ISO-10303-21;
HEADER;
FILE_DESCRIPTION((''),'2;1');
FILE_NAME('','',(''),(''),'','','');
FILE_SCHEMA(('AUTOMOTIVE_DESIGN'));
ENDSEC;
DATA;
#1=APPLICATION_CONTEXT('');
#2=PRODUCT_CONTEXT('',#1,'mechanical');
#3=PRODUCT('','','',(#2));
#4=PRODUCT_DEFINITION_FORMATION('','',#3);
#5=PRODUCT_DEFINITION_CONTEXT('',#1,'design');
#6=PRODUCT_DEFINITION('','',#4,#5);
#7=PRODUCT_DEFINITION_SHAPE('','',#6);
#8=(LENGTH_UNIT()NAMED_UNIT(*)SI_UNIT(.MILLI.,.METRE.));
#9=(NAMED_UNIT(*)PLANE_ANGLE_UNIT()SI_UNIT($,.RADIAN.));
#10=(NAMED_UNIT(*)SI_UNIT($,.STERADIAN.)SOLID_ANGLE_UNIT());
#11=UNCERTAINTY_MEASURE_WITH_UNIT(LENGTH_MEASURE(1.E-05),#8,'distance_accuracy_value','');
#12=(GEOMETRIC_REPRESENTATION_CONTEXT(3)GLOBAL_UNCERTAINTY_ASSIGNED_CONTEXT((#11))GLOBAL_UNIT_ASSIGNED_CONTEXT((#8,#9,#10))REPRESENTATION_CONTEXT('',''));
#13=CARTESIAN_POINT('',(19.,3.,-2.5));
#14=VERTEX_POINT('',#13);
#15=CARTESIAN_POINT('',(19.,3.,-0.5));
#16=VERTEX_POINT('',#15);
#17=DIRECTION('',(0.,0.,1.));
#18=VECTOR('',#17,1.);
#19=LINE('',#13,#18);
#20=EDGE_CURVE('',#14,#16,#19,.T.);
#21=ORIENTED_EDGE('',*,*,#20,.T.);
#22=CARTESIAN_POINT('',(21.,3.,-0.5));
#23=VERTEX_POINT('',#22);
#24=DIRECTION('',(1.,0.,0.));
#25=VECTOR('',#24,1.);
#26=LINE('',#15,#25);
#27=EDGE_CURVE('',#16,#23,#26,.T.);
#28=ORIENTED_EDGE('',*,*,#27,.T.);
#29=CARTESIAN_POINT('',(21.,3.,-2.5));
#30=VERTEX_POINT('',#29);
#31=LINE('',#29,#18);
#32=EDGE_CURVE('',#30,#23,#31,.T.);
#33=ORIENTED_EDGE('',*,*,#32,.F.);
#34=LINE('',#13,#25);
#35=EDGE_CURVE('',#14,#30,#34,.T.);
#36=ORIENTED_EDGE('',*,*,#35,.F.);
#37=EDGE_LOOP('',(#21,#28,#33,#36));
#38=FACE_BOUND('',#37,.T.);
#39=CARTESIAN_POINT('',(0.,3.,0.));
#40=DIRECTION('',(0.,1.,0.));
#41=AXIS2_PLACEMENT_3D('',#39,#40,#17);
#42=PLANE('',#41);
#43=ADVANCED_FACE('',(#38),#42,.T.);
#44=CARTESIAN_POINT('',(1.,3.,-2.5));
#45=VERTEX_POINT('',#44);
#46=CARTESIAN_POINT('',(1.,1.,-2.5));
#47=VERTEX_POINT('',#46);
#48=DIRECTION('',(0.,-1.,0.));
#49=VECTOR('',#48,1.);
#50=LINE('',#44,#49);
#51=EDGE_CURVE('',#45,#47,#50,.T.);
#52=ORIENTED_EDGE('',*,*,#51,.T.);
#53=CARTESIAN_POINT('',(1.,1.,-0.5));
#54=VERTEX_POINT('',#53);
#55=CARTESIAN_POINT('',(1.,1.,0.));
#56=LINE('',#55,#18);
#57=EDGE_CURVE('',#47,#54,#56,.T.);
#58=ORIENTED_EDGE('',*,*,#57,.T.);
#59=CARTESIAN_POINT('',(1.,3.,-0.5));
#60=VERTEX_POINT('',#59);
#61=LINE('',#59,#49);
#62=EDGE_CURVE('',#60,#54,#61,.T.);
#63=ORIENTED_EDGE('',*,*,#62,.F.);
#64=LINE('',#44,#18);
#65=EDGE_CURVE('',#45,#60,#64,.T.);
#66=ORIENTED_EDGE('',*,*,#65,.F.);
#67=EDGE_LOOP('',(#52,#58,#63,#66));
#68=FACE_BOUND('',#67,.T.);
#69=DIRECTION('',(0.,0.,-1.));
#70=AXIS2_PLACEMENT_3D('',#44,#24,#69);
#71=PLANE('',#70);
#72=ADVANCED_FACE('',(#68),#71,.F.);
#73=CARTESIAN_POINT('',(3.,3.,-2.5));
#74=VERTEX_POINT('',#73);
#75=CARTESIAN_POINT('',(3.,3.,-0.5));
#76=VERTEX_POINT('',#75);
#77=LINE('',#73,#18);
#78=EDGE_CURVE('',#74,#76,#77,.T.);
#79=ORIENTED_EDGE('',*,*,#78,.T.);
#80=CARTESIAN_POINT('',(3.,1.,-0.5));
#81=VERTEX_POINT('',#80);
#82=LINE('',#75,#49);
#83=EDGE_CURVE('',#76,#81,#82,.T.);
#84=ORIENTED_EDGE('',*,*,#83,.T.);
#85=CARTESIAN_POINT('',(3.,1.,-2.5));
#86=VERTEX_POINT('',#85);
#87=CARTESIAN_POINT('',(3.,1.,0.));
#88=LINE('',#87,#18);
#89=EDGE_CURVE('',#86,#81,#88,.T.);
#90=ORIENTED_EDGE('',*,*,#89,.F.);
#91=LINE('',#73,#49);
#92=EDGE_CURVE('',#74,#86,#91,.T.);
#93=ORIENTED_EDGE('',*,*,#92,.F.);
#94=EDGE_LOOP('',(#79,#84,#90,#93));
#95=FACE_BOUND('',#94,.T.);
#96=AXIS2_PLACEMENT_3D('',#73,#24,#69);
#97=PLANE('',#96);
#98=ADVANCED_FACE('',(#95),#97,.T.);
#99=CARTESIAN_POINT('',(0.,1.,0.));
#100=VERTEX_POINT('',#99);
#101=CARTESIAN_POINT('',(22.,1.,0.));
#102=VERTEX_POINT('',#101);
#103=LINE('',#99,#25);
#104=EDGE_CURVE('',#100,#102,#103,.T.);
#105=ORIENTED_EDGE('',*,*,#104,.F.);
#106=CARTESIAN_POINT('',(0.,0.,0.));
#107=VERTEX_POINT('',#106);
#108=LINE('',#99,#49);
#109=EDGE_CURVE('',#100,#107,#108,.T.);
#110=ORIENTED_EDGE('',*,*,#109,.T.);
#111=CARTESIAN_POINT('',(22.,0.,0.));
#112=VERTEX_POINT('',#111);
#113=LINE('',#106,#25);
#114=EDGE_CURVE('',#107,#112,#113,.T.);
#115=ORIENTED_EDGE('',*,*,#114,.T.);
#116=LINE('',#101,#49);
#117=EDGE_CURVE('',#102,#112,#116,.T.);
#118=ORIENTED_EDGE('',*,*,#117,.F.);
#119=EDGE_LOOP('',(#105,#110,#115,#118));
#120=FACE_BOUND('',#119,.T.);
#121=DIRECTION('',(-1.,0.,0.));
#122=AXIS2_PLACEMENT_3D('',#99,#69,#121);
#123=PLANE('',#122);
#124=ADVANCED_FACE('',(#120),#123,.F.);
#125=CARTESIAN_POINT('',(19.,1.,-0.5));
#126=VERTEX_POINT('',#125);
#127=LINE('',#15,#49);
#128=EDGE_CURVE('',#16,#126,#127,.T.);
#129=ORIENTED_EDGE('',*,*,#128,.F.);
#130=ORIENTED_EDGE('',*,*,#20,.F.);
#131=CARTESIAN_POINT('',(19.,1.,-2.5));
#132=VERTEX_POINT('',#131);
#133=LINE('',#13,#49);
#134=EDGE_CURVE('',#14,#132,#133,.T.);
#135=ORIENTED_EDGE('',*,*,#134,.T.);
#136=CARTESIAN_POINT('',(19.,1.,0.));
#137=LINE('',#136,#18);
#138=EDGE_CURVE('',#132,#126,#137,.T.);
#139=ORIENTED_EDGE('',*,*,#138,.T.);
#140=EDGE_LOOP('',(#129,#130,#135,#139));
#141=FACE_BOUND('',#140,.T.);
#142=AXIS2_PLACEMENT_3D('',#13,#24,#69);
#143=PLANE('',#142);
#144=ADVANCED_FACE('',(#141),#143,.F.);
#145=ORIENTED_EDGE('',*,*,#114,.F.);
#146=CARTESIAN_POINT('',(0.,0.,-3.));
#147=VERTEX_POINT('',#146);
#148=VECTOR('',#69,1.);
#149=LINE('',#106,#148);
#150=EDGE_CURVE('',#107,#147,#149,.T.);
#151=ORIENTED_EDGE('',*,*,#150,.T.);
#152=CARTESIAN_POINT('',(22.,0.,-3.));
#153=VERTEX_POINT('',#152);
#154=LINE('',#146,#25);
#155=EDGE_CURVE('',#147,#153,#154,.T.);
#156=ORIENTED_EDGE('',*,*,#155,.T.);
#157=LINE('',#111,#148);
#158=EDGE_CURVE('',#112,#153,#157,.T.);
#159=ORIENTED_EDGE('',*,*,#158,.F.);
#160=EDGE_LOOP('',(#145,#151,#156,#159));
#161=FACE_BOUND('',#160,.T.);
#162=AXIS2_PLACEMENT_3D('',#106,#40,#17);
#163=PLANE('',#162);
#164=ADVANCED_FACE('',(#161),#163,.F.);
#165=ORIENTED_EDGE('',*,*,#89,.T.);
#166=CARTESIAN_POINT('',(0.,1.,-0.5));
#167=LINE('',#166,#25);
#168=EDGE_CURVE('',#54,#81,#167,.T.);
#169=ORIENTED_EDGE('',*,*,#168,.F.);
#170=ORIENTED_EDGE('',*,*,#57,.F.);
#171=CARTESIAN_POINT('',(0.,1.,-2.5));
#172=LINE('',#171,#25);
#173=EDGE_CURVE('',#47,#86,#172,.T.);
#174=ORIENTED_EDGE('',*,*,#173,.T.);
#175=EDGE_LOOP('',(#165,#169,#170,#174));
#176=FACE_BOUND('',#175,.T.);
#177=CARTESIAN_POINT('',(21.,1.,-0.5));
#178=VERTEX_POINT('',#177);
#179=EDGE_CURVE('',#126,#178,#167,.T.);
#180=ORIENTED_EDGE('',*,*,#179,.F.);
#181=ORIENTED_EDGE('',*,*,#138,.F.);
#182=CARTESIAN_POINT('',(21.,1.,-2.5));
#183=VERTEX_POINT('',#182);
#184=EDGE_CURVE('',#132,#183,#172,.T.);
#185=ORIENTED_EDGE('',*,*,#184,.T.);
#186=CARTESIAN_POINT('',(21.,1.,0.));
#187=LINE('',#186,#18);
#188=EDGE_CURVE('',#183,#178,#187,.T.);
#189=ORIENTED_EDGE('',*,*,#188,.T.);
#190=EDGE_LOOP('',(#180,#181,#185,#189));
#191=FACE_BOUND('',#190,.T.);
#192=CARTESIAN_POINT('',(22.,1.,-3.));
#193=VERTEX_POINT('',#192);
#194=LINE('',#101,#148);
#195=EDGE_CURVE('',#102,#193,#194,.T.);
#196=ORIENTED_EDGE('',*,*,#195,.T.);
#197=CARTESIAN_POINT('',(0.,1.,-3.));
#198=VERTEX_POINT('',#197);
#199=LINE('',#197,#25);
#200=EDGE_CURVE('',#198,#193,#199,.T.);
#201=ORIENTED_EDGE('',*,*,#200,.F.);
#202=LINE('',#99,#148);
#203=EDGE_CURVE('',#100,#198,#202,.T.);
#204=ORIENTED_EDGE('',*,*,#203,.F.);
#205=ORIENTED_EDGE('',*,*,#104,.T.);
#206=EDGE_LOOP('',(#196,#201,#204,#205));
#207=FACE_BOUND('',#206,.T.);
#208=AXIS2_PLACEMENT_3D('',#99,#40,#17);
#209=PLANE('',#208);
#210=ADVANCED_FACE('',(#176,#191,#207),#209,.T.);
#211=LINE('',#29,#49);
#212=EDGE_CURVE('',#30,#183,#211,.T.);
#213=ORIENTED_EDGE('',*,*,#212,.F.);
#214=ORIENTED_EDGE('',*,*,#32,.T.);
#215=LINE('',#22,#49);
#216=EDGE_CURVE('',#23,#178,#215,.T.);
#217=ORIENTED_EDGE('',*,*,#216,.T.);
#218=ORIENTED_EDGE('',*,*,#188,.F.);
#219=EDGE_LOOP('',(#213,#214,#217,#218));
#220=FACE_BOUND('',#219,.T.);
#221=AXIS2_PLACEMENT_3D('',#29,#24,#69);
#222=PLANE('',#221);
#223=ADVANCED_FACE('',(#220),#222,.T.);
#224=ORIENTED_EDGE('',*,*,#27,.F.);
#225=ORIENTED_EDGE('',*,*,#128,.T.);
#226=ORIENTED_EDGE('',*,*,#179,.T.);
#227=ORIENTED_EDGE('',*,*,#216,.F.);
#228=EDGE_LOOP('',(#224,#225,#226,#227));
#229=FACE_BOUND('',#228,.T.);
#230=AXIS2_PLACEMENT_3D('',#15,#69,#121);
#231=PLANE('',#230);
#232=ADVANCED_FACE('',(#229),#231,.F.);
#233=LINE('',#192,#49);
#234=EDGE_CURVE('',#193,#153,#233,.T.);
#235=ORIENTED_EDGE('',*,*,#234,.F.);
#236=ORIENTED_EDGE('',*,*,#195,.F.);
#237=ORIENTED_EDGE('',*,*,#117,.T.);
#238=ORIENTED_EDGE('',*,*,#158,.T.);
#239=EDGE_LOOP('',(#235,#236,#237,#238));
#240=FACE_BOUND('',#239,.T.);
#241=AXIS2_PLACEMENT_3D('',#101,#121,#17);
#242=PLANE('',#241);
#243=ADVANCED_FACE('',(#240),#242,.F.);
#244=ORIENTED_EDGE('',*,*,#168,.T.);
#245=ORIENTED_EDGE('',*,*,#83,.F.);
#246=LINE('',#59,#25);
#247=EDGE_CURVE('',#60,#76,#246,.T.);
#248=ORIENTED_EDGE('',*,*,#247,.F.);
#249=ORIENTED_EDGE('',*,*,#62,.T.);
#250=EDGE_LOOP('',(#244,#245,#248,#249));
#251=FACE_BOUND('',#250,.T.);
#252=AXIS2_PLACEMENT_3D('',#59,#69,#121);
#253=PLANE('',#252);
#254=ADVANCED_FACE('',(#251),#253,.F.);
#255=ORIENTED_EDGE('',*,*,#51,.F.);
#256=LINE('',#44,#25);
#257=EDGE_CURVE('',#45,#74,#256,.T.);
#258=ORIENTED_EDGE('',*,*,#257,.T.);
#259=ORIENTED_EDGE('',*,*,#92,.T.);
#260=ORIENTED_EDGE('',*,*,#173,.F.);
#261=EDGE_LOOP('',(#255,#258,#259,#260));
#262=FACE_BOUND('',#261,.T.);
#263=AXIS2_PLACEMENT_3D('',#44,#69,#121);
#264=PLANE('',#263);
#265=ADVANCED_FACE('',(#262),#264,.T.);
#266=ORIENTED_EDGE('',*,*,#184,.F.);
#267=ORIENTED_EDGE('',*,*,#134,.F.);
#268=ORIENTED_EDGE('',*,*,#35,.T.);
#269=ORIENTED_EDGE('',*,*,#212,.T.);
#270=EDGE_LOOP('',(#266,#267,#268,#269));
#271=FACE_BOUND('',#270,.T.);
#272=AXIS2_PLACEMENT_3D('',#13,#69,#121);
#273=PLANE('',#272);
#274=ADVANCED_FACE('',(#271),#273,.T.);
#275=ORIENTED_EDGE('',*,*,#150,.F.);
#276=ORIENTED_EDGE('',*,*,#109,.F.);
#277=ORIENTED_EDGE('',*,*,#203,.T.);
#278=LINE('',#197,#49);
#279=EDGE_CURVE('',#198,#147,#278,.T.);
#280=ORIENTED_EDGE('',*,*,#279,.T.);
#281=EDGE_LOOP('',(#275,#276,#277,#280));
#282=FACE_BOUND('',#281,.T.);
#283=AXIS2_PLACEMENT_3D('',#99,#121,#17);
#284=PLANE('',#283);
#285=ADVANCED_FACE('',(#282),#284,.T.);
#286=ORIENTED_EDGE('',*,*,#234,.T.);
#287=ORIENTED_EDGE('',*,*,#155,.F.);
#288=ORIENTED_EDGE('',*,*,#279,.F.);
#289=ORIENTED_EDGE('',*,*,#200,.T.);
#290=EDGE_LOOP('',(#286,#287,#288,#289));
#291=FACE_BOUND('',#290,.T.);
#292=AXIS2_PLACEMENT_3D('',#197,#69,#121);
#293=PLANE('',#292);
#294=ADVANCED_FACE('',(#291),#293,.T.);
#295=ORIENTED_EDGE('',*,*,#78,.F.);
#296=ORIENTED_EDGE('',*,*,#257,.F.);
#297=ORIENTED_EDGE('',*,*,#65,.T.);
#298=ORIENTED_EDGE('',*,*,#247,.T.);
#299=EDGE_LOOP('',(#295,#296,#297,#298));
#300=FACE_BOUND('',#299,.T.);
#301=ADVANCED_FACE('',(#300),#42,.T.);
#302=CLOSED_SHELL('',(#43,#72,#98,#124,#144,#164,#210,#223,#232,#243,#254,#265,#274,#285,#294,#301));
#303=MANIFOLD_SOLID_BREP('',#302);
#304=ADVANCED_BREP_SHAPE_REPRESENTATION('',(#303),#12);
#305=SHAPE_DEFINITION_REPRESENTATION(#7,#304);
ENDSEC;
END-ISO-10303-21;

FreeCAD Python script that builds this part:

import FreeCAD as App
import Part
import Sketcher


def add_polygon(sketch, points):
    """Adds a closed chain of lines whose ends are joined by coincident constraints."""
    first, n = sketch.GeometryCount, len(points)
    for a, b in zip(points, points[1:] + points[:1]):
        sketch.addGeometry(Part.LineSegment(App.Vector(*a, 0), App.Vector(*b, 0)), False)
    for i in range(n):
        sketch.addConstraint(Sketcher.Constraint("Coincident", first + i, 2, first + (i + 1) % n, 1))

doc = App.newDocument("Part")
body = doc.addObject("PartDesign::Body", "Body")

sketch1 = body.newObject("Sketcher::SketchObject", "Sketch")
sketch1.AttachmentSupport = (doc.getObject("XZ_Plane"), [""])
sketch1.MapMode = "FlatFace"
add_polygon(sketch1, [(0, -3), (0, 0), (22, 0), (22, -3)])
add_polygon(sketch1, [(3, -0.5), (1, -0.5), (1, -2.5), (3, -2.5)])
add_polygon(sketch1, [(21, -0.5), (19, -0.5), (19, -2.5), (21, -2.5)])
sketch1.addConstraint([
    Sketcher.Constraint("Vertical", 0),
    Sketcher.Constraint("Horizontal", 1),
    Sketcher.Constraint("Vertical", 2),
    Sketcher.Constraint("Horizontal", 3),
    Sketcher.Constraint("Horizontal", 4),
    Sketcher.Constraint("Vertical", 5),
    Sketcher.Constraint("Horizontal", 6),
    Sketcher.Constraint("Vertical", 7),
    Sketcher.Constraint("Horizontal", 8),
    Sketcher.Constraint("Vertical", 9),
    Sketcher.Constraint("Horizontal", 10),
    Sketcher.Constraint("Vertical", 11),
    Sketcher.Constraint("Coincident", 0, 2, -1, 1),
    Sketcher.Constraint("Horizontal", 7, 2, 8, 2),
    Sketcher.Constraint("Horizontal", 6, 2, 9, 2),
    Sketcher.Constraint("Equal", 6, 8),
    Sketcher.Constraint("Equal", 10, 5),
    Sketcher.Constraint("DistanceX", 1, 1, 1, 2, 22.0),
    Sketcher.Constraint("DistanceX", 4, 2, 4, 1, 2.0),
    Sketcher.Constraint("DistanceY", 0, 1, 0, 2, 3.0),
    Sketcher.Constraint("DistanceX", -1, 1, 4, 2, 1.0),
    Sketcher.Constraint("DistanceX", -1, 1, 8, 2, 19.0),
    Sketcher.Constraint("DistanceY", 4, 2, -1, 1, 0.5),
])
pad1 = body.newObject("PartDesign::Pad", "Pad")
pad1.Profile = sketch1
pad1.Length = 1
pad1.Reversed = True

sketch2 = body.newObject("Sketcher::SketchObject", "Sketch001")
sketch2.AttachmentSupport = (doc.getObject("XZ_Plane"), [""])
sketch2.MapMode = "FlatFace"
add_polygon(sketch2, [(1, -2.5), (1, -0.5), (3, -0.5), (3, -2.5)])
add_polygon(sketch2, [(19, -2.5), (19, -0.5), (21, -0.5), (21, -2.5)])
sketch2.addConstraint([
    Sketcher.Constraint("Vertical", 0),
    Sketcher.Constraint("Horizontal", 1),
    Sketcher.Constraint("Vertical", 2),
    Sketcher.Constraint("Horizontal", 3),
    Sketcher.Constraint("Vertical", 4),
    Sketcher.Constraint("Horizontal", 5),
    Sketcher.Constraint("Vertical", 6),
    Sketcher.Constraint("Horizontal", 7),
    Sketcher.Constraint("Horizontal", 1, 2, 4, 2),
    Sketcher.Constraint("Horizontal", 3, 2, 6, 2),
    Sketcher.Constraint("Equal", 3, 5),
    Sketcher.Constraint("Equal", 7, 0),
    Sketcher.Constraint("DistanceX", 1, 1, 1, 2, 2.0),
    Sketcher.Constraint("DistanceX", -1, 1, 0, 2, 1.0),
    Sketcher.Constraint("DistanceX", -1, 1, 4, 2, 19.0),
    Sketcher.Constraint("DistanceY", 0, 2, -1, 1, 0.5),
])
pad2 = body.newObject("PartDesign::Pad", "Pad001")
pad2.Profile = sketch2
pad2.Length = 3
pad2.Reversed = True

doc.recompute()
